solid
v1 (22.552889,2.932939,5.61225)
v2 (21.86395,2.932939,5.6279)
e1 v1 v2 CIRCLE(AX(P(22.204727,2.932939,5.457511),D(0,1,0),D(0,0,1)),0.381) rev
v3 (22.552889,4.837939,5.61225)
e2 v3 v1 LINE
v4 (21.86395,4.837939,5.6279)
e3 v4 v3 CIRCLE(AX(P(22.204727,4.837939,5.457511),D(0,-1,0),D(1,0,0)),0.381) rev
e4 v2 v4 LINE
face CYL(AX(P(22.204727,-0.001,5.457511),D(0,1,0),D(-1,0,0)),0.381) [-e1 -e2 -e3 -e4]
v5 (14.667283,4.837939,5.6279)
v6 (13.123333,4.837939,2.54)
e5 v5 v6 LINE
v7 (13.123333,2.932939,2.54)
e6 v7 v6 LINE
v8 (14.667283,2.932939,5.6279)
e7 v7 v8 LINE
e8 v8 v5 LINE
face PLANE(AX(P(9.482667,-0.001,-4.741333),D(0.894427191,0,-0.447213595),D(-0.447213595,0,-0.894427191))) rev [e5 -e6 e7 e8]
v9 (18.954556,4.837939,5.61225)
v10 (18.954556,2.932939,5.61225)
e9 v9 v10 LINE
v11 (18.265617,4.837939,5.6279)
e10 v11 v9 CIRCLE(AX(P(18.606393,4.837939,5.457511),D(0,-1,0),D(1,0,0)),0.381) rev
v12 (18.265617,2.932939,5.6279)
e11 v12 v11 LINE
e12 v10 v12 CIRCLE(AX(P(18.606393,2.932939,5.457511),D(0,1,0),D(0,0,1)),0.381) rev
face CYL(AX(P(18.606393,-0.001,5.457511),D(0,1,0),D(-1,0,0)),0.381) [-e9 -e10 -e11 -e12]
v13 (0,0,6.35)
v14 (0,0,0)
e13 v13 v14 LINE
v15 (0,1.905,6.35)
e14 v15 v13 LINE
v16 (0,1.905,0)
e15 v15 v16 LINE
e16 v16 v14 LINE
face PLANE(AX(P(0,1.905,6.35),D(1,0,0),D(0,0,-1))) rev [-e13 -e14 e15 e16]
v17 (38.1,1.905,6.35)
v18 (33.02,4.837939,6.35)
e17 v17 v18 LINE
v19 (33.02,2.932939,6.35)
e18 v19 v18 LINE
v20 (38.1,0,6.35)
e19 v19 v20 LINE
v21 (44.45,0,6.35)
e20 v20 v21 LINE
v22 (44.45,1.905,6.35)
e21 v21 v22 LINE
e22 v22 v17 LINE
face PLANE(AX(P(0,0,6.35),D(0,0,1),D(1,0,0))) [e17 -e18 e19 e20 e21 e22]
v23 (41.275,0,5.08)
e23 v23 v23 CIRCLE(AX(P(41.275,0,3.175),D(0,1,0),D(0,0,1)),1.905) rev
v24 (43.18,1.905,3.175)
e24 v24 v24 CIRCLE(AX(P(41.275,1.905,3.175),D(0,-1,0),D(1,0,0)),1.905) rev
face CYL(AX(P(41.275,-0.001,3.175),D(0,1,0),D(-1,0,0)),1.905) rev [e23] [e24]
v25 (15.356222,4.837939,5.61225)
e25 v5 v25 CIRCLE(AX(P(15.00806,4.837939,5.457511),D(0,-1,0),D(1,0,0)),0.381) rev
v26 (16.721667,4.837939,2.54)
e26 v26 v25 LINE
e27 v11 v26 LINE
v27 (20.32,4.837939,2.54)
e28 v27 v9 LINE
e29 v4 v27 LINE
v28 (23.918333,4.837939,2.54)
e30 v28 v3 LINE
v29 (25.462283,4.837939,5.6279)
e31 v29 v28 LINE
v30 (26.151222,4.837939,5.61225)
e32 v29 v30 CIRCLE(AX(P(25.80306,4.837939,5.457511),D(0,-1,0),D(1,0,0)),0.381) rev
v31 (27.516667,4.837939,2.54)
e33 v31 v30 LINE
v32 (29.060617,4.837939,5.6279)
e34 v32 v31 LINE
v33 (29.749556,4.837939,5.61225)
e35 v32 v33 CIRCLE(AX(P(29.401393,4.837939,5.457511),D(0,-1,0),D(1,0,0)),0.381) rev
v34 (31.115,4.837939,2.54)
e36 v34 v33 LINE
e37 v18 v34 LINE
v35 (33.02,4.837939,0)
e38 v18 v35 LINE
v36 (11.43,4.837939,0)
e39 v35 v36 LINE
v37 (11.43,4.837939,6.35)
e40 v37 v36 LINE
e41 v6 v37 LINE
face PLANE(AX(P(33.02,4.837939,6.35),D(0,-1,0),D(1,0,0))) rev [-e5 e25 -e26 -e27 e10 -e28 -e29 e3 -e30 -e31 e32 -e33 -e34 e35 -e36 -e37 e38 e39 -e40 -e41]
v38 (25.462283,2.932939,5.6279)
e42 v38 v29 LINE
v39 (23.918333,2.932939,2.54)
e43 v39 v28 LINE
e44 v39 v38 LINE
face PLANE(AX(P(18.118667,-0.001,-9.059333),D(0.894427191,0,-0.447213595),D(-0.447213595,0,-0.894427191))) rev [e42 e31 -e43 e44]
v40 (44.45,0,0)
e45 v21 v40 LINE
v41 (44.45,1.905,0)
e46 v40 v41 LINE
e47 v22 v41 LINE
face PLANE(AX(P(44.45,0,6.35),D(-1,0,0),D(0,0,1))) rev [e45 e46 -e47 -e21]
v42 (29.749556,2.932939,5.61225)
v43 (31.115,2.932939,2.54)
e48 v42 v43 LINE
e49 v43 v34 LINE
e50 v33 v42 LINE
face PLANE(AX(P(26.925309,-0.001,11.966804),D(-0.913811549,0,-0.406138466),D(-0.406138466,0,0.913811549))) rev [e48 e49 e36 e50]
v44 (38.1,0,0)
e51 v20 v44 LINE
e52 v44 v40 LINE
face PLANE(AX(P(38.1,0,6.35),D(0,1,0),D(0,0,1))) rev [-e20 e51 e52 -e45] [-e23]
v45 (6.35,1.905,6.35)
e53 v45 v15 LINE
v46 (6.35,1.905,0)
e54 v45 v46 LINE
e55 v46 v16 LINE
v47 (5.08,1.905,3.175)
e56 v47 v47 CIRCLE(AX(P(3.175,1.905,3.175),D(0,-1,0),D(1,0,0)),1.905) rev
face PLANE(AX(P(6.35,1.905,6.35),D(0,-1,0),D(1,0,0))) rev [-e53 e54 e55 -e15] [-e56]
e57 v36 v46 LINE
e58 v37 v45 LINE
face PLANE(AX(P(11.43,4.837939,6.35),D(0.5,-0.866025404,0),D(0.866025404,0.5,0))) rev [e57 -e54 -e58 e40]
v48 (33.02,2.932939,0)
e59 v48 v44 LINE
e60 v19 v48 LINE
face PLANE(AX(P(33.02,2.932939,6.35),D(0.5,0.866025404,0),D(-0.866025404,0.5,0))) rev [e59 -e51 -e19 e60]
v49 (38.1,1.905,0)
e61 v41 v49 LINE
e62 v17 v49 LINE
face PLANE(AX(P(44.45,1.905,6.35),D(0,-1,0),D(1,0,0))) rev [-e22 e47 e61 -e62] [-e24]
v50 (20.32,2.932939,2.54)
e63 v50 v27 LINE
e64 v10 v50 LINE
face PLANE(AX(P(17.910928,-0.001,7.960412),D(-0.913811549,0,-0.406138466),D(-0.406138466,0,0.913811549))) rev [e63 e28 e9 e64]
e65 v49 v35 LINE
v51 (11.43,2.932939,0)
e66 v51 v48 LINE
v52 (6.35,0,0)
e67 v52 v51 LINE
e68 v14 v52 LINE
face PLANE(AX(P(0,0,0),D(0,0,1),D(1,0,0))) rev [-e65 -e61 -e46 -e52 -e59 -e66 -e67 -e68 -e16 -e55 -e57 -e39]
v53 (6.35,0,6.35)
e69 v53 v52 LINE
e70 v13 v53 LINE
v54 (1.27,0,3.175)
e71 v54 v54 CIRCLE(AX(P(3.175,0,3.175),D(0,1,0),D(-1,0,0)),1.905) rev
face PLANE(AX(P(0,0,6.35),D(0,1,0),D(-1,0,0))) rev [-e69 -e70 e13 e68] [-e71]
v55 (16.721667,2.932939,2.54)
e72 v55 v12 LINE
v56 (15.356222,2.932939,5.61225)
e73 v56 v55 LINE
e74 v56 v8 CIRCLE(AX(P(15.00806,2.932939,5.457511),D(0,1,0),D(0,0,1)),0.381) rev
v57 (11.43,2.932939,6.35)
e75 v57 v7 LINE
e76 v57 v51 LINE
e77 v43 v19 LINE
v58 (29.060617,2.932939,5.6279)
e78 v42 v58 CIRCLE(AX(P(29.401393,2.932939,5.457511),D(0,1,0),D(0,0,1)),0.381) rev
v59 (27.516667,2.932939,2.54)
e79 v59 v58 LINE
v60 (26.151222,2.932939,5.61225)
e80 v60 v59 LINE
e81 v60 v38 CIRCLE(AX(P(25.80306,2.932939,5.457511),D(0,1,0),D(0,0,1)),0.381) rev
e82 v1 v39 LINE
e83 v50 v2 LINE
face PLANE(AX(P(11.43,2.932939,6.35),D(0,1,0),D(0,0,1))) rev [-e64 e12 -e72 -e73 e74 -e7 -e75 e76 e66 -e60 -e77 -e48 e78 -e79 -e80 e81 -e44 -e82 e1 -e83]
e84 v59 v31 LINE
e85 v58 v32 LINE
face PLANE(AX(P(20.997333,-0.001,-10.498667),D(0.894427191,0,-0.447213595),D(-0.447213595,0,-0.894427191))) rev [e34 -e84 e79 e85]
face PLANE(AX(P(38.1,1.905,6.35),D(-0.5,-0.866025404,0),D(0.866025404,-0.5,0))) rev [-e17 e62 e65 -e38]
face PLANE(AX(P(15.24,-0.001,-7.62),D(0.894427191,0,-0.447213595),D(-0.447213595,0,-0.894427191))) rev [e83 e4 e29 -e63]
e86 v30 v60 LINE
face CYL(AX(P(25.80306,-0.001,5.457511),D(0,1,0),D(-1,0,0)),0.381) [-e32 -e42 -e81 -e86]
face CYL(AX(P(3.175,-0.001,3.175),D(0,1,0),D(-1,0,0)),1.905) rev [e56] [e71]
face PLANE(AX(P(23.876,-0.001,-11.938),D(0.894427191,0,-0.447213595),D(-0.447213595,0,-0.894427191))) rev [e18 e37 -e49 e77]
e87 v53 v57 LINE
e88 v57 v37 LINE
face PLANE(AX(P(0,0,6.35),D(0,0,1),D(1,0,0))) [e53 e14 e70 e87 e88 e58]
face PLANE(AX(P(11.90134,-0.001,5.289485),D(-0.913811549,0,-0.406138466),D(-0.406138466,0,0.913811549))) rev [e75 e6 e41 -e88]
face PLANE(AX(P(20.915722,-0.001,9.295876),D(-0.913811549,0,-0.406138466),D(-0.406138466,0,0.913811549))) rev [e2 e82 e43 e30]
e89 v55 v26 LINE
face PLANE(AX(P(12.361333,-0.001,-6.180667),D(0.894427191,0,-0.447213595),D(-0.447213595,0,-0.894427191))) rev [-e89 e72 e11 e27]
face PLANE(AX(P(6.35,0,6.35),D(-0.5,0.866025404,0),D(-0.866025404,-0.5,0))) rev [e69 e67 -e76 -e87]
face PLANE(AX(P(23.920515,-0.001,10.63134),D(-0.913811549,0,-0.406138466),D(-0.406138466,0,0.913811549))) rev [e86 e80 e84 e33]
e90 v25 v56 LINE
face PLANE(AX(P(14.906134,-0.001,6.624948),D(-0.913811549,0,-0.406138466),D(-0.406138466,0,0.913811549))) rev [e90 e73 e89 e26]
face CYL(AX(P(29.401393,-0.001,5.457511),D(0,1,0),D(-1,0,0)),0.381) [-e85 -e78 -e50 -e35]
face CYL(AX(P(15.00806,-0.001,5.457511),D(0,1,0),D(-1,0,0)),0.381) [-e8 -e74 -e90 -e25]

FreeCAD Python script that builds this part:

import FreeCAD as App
import Part
import Sketcher

V = App.Vector
Q = App.Units.Quantity


def edges_at(feature, points):
    """Names of the edges that pass closest to the given points."""
    edges = feature.Shape.Edges
    near = lambda p: min(range(len(edges)), key=lambda i: edges[i].distToShape(Part.Vertex(*p))[0])
    return sorted({f"Edge{near(p) + 1}" for p in points})


def add_polygon(sketch, points):
    """Adds a closed chain of lines whose ends are joined by coincident constraints."""
    first, n = sketch.GeometryCount, len(points)
    for a, b in zip(points, points[1:] + points[:1]):
        sketch.addGeometry(Part.LineSegment(App.Vector(*a, 0), App.Vector(*b, 0)), False)
    for i in range(n):
        sketch.addConstraint(Sketcher.Constraint("Coincident", first + i, 2, first + (i + 1) % n, 1))

doc = App.newDocument("Part")
body = doc.addObject("PartDesign::Body", "Body")

sketch1 = body.newObject("Sketcher::SketchObject", "Sketch")
sketch1.AttachmentSupport = (doc.getObject("XY_Plane"), [""])
sketch1.MapMode = "FlatFace"
add_polygon(sketch1, [(0, 0), (6.35, 0), (11.43, 2.932939), (33.02, 2.932939), (38.1, 0), (44.45, 0), (44.45, 1.905), (38.1, 1.905), (33.02, 4.837939), (11.43, 4.837939), (6.35, 1.905), (0, 1.905)])
sketch1.addConstraint([
    Sketcher.Constraint("Horizontal", 0),
    Sketcher.Constraint("Horizontal", 2),
    Sketcher.Constraint("Horizontal", 4),
    Sketcher.Constraint("Vertical", 5),
    Sketcher.Constraint("Horizontal", 6),
    Sketcher.Constraint("Horizontal", 8),
    Sketcher.Constraint("Horizontal", 10),
    Sketcher.Constraint("Vertical", 11),
    Sketcher.Constraint("Coincident", 11, 2, -1, 1),
    Sketcher.Constraint("PointOnObject", 3, 2, -1),
    Sketcher.Constraint("Parallel", 3, 7),
    Sketcher.Constraint("Parallel", 1, 9),
    Sketcher.Constraint("Horizontal", 6, 2, 9, 2),
    Sketcher.Constraint("Vertical", 3, 2, 6, 2),
    Sketcher.Constraint("Vertical", 2, 2, 7, 2),
    Sketcher.Constraint("Vertical", 1, 2, 8, 2),
    Sketcher.Constraint("Equal", 0, 4),
    Sketcher.Constraint("Equal", 1, 3),
    Sketcher.Constraint("Angle", 1, Q("30 deg")),
    Sketcher.Constraint("DistanceX", 0, 1, 0, 2, Q("0.25 in")),
    Sketcher.Constraint("DistanceX", 2, 1, 2, 2, Q("0.85 in")),
    Sketcher.Constraint("DistanceX", -1, 1, 2, 2, Q("1.3 in")),
    Sketcher.Constraint("DistanceY", 5, 1, 5, 2, Q("0.075 in")),
])
pad1 = body.newObject("PartDesign::Pad", "Pad")
pad1.Profile = sketch1
pad1.Length = Q("0.25 in")

sketch2 = body.newObject("Sketcher::SketchObject", "Sketch001")
sketch2.AttachmentSupport = (doc.getObject("XZ_Plane"), [""])
sketch2.MapMode = "FlatFace"
sketch2.AttachmentOffset = App.Placement(V(0, 0, -4.837939), App.Rotation())
sketch2.addGeometry(Part.Circle(V(41.275, 3.175, 0), V(0, 0, 1), 1.905), False)
sketch2.addConstraint([
    Sketcher.Constraint("Diameter", 0, Q("0.15 in")),
    Sketcher.Constraint("DistanceX", -1, 1, 0, 3, Q("1.625 in")),
    Sketcher.Constraint("DistanceY", -1, 1, 0, 3, Q("0.125 in")),
])
pocket1 = body.newObject("PartDesign::Pocket", "Pocket")
pocket1.Profile = sketch2
pocket1.Length = 4.837939
pocket1.Reversed = True

sketch3 = body.newObject("Sketcher::SketchObject", "Sketch002")
sketch3.AttachmentSupport = (doc.getObject("XZ_Plane"), [""])
sketch3.MapMode = "FlatFace"
sketch3.AttachmentOffset = App.Placement(V(0, 0, -4.837939), App.Rotation())
sketch3.addGeometry(Part.Circle(V(3.175, 3.175, 0), V(0, 0, 1), 1.905), False)
sketch3.addConstraint([
    Sketcher.Constraint("Diameter", 0, Q("0.15 in")),
    Sketcher.Constraint("DistanceX", -1, 1, 0, 3, Q("0.125 in")),
    Sketcher.Constraint("DistanceY", -1, 1, 0, 3, Q("0.125 in")),
])
pocket2 = body.newObject("PartDesign::Pocket", "Pocket001")
pocket2.Profile = sketch3
pocket2.Length = 4.837939
pocket2.Reversed = True

sketch4 = body.newObject("Sketcher::SketchObject", "Sketch003")
sketch4.AttachmentSupport = (doc.getObject("XZ_Plane"), [""])
sketch4.MapMode = "FlatFace"
sketch4.AttachmentOffset = App.Placement(V(0, 0, -4.837939), App.Rotation())
add_polygon(sketch4, [(25.823333, 6.35), (29.421667, 6.35), (27.516667, 2.54)])
sketch4.addConstraint([
    Sketcher.Constraint("Horizontal", 0),
    Sketcher.Constraint("DistanceY", -1, 1, 1, 2, Q("0.1 in")),
    Sketcher.Constraint("DistanceY", -1, 1, 0, 2, Q("0.25 in")),
    Sketcher.Constraint("DistanceX", 1, 2, 0, 2, Q("0.075 in")),
    Sketcher.Constraint("Distance", 2, Q("4.16935 mm")),
    Sketcher.Constraint("DistanceX", -1, 1, 0, 2, Q("29.421667 mm")),
])
pocket3 = body.newObject("PartDesign::Pocket", "Pocket002")
pocket3.Profile = sketch4
pocket3.Type = "UpToFirst"
pocket3.Reversed = True

sketch5 = body.newObject("Sketcher::SketchObject", "Sketch004")
sketch5.AttachmentSupport = (doc.getObject("XZ_Plane"), [""])
sketch5.MapMode = "FlatFace"
sketch5.AttachmentOffset = App.Placement(V(0, 0, -4.837939), App.Rotation())
add_polygon(sketch5, [(29.421667, 6.35), (33.02, 6.35), (31.115, 2.54)])
sketch5.addConstraint([
    Sketcher.Constraint("Horizontal", 0),
    Sketcher.Constraint("DistanceX", -1, 1, 0, 2, Q("1.3 in")),
    Sketcher.Constraint("DistanceY", -1, 1, 1, 2, Q("0.1 in")),
    Sketcher.Constraint("DistanceY", -1, 1, 0, 2, Q("0.25 in")),
    Sketcher.Constraint("DistanceX", -1, 1, 1, 2, Q("1.225 in")),
    Sketcher.Constraint("Distance", 2, Q("4.16935 mm")),
])
pocket4 = body.newObject("PartDesign::Pocket", "Pocket003")
pocket4.Profile = sketch5
pocket4.Type = "UpToFirst"
pocket4.Reversed = True

sketch6 = body.newObject("Sketcher::SketchObject", "Sketch005")
sketch6.AttachmentSupport = (doc.getObject("XZ_Plane"), [""])
sketch6.MapMode = "FlatFace"
sketch6.AttachmentOffset = App.Placement(V(0, 0, -4.837939), App.Rotation())
add_polygon(sketch6, [(22.225, 6.35), (25.823333, 6.35), (23.918333, 2.54)])
sketch6.addConstraint([
    Sketcher.Constraint("Horizontal", 0),
    Sketcher.Constraint("DistanceY", -1, 1, 1, 2, Q("0.1 in")),
    Sketcher.Constraint("DistanceY", -1, 1, 0, 2, Q("0.25 in")),
    Sketcher.Constraint("DistanceX", -1, 1, 2, 2, Q("0.875 in")),
    Sketcher.Constraint("DistanceX", 1, 2, 0, 2, Q("0.075 in")),
    Sketcher.Constraint("Distance", 2, Q("4.16935 mm")),
])
pocket5 = body.newObject("PartDesign::Pocket", "Pocket004")
pocket5.Profile = sketch6
pocket5.Type = "UpToFirst"
pocket5.Reversed = True

sketch7 = body.newObject("Sketcher::SketchObject", "Sketch006")
sketch7.AttachmentSupport = (doc.getObject("XZ_Plane"), [""])
sketch7.MapMode = "FlatFace"
sketch7.AttachmentOffset = App.Placement(V(0, 0, -4.837939), App.Rotation())
add_polygon(sketch7, [(18.626667, 6.35), (22.225, 6.35), (20.32, 2.54)])
sketch7.addConstraint([
    Sketcher.Constraint("Horizontal", 0),
    Sketcher.Constraint("DistanceX", -1, 1, 1, 2, Q("0.8 in")),
    Sketcher.Constraint("DistanceY", -1, 1, 1, 2, Q("0.1 in")),
    Sketcher.Constraint("DistanceY", -1, 1, 0, 2, Q("0.25 in")),
    Sketcher.Constraint("DistanceX", -1, 1, 0, 2, Q("0.875 in")),
    Sketcher.Constraint("Distance", 2, Q("4.16935 mm")),
])
pocket6 = body.newObject("PartDesign::Pocket", "Pocket005")
pocket6.Profile = sketch7
pocket6.Type = "UpToFirst"
pocket6.Reversed = True

sketch8 = body.newObject("Sketcher::SketchObject", "Sketch007")
sketch8.AttachmentSupport = (doc.getObject("XZ_Plane"), [""])
sketch8.MapMode = "FlatFace"
sketch8.AttachmentOffset = App.Placement(V(0, 0, -4.837939), App.Rotation())
add_polygon(sketch8, [(15.028333, 6.35), (18.626667, 6.35), (16.721667, 2.54)])
sketch8.addConstraint([
    Sketcher.Constraint("Horizontal", 0),
    Sketcher.Constraint("DistanceY", -1, 1, 1, 2, Q("0.1 in")),
    Sketcher.Constraint("DistanceY", -1, 1, 0, 2, Q("0.25 in")),
    Sketcher.Constraint("DistanceX", 1, 2, 0, 2, Q("0.075 in")),
    Sketcher.Constraint("Distance", 2, Q("4.16935 mm")),
    Sketcher.Constraint("DistanceX", -1, 1, 0, 2, Q("18.626667 mm")),
])
pocket7 = body.newObject("PartDesign::Pocket", "Pocket006")
pocket7.Profile = sketch8
pocket7.Type = "UpToFirst"
pocket7.Reversed = True

sketch9 = body.newObject("Sketcher::SketchObject", "Sketch008")
sketch9.AttachmentSupport = (doc.getObject("XZ_Plane"), [""])
sketch9.MapMode = "FlatFace"
sketch9.AttachmentOffset = App.Placement(V(0, 0, -4.837939), App.Rotation())
add_polygon(sketch9, [(11.43, 6.35), (15.028333, 6.35), (13.123333, 2.54)])
sketch9.addConstraint([
    Sketcher.Constraint("Horizontal", 0),
    Sketcher.Constraint("DistanceY", -1, 1, 1, 2, Q("0.1 in")),
    Sketcher.Constraint("DistanceY", -1, 1, 0, 2, Q("0.25 in")),
    Sketcher.Constraint("DistanceX", -1, 1, 2, 2, Q("0.45 in")),
    Sketcher.Constraint("DistanceX", 1, 2, 0, 2, Q("0.075 in")),
    Sketcher.Constraint("Distance", 2, Q("4.16935 mm")),
])
pocket8 = body.newObject("PartDesign::Pocket", "Pocket007")
pocket8.Profile = sketch9
pocket8.Type = "UpToFirst"
pocket8.Reversed = True
doc.recompute()

fillet = body.newObject("PartDesign::Fillet", "Fillet")
fillet.Base = (pocket8, edges_at(pocket8, [
    (29.422, 3.885, 6.35),
    (25.823, 3.885, 6.35),
    (18.627, 3.885, 6.35),
    (22.225, 3.885, 6.35),
    (15.028, 3.885, 6.35),
]))
fillet.Radius = Q("0.015 in")

doc.recompute()
